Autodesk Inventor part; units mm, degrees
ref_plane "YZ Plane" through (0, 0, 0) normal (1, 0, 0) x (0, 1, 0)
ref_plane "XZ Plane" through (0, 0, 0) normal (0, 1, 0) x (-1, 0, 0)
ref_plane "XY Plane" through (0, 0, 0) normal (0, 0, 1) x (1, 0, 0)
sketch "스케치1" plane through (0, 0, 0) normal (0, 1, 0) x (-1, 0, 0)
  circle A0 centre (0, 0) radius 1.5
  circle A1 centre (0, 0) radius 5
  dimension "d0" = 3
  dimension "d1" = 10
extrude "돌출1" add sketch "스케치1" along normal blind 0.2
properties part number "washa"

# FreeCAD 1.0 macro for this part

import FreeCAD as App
import Part
import Sketcher

V = App.Vector
Q = App.Units.Quantity

doc = App.newDocument("Part")
body = doc.addObject("PartDesign::Body", "Body")

# Sketch on XZ plane
sketch1 = body.newObject("Sketcher::SketchObject", "Sketch")
sketch1.AttachmentSupport = (doc.getObject("XZ_Plane"), [""])
sketch1.MapMode = "FlatFace"
sketch1.addGeometry(Part.Circle(V(0, 0, 0), V(0, 0, 1), 5), False)
sketch1.addGeometry(Part.Circle(V(0, 0, 0), V(0, 0, 1), 1.5), False)
sketch1.addConstraint(Sketcher.Constraint("Coincident", 0, 3, -1, 1))
sketch1.addConstraint(Sketcher.Constraint("Coincident", 1, 3, -1, 1))
sketch1.addConstraint(Sketcher.Constraint("Diameter", 0, Q("10 mm")))
sketch1.addConstraint(Sketcher.Constraint("Diameter", 1, Q("3 mm")))
pad1 = body.newObject("PartDesign::Pad", "Pad")
pad1.Profile = sketch1
pad1.Length = 0.2
pad1.Reversed = True

doc.recompute()
